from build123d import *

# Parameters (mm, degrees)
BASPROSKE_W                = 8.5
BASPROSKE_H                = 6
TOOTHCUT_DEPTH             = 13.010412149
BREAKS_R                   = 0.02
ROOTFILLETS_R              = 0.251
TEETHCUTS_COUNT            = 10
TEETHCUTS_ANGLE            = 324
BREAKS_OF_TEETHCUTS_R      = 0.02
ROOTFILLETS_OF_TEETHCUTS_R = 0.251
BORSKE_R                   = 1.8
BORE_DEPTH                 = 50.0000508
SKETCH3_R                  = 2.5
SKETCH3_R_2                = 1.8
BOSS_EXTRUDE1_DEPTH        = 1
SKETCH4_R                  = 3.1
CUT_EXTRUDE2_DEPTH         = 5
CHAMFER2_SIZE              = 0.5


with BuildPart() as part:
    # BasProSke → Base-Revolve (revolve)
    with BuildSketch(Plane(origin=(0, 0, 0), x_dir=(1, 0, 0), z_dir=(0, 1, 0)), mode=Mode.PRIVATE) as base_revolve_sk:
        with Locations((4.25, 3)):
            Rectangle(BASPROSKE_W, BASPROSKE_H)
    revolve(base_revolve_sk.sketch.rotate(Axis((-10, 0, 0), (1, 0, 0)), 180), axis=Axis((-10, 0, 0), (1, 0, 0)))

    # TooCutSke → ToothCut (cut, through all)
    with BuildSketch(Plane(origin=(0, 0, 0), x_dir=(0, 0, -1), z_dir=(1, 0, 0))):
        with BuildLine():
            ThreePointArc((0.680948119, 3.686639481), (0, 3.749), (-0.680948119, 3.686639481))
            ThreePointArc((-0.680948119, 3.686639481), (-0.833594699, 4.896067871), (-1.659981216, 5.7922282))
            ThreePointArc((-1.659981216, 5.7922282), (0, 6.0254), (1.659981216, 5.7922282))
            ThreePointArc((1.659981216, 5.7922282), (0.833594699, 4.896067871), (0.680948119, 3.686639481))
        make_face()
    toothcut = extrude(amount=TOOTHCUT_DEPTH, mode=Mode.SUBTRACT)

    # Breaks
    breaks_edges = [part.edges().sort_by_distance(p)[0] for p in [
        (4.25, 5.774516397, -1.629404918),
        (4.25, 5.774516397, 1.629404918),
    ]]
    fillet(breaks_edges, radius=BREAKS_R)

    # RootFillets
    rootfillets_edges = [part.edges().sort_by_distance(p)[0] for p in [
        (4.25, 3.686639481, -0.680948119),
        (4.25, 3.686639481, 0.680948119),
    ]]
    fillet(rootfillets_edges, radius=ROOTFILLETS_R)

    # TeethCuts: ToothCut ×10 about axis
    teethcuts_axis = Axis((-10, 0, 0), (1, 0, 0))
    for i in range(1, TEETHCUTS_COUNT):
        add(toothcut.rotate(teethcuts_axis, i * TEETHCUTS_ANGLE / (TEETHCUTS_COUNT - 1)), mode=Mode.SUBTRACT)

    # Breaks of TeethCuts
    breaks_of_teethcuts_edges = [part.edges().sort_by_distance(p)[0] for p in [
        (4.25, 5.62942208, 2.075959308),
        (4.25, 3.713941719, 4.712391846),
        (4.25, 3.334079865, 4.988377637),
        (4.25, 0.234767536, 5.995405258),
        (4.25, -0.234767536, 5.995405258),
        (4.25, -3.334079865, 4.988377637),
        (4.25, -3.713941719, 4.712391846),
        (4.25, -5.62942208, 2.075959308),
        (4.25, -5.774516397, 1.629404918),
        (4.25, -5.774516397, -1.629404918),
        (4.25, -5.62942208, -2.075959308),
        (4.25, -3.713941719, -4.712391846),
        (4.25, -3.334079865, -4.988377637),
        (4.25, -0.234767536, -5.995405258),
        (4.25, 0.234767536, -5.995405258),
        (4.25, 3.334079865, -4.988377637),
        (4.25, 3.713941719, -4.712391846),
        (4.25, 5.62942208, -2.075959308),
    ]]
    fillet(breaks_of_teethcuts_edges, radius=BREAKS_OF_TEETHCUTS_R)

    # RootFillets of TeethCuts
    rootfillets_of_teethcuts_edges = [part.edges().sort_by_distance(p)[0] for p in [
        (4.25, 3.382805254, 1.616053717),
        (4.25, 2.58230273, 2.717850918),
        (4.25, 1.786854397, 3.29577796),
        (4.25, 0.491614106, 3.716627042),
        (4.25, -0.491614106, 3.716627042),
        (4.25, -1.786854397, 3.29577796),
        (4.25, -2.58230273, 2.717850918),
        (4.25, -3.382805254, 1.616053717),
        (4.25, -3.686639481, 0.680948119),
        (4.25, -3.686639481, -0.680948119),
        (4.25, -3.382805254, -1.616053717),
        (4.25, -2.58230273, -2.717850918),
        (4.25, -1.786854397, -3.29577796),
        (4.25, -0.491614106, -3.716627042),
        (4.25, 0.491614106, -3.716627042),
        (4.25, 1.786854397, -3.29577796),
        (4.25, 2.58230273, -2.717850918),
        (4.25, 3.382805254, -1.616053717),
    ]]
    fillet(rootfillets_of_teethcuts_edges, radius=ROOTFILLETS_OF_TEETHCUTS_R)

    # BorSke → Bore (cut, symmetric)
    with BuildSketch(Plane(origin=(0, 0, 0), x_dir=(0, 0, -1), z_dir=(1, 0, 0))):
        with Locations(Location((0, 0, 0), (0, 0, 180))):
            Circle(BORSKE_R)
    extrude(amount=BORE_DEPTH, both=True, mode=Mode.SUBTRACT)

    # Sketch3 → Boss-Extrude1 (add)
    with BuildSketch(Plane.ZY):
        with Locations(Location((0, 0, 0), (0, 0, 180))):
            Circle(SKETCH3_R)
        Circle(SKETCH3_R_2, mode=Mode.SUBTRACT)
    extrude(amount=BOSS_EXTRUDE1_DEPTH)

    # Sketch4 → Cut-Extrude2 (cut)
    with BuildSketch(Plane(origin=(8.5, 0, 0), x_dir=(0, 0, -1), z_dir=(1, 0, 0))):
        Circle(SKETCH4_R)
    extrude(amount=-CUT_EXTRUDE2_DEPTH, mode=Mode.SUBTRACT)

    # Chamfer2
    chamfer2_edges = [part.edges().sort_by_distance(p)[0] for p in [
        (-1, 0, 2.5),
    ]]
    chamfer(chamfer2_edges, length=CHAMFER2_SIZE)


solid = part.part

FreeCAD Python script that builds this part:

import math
import FreeCAD as App
import Part
import Sketcher

V = App.Vector


def edges_at(feature, points):
    """Names of the edges that pass closest to the given points."""
    edges = feature.Shape.Edges
    near = lambda p: min(range(len(edges)), key=lambda i: edges[i].distToShape(Part.Vertex(*p))[0])
    return sorted({f"Edge{near(p) + 1}" for p in points})

doc = App.newDocument("Part")
body = doc.addObject("PartDesign::Body", "Body")

sketch1 = body.newObject("Sketcher::SketchObject", "Sketch")
sketch1.AttachmentSupport = (doc.getObject("XZ_Plane"), [""])
sketch1.MapMode = "FlatFace"
sketch1.addGeometry([
    Part.LineSegment(V(0, -6, 0), V(0, 0, 0)),
    Part.LineSegment(V(0, 0, 0), V(8, 0, 0)),
    Part.LineSegment(V(8, 0, 0), V(8, -6, 0)),
    Part.LineSegment(V(8, -6, 0), V(0, -6, 0)),
], False)
sketch1.addConstraint([
    Sketcher.Constraint("Coincident", 0, 2, 1, 1),
    Sketcher.Constraint("Coincident", 1, 2, 2, 1),
    Sketcher.Constraint("Coincident", 2, 2, 3, 1),
    Sketcher.Constraint("Coincident", 3, 2, 0, 1),
    Sketcher.Constraint("Vertical", 0),
    Sketcher.Constraint("Horizontal", 1),
    Sketcher.Constraint("Vertical", 2),
    Sketcher.Constraint("Horizontal", 3),
    Sketcher.Constraint("Coincident", 0, 2, -1, 1),
    Sketcher.Constraint("DistanceY", 0, 1, 0, 2, 6.0),
    Sketcher.Constraint("DistanceX", 1, 1, 1, 2, 8.5),
])
revolution = body.newObject("PartDesign::Revolution", "Revolution")
revolution.Profile = sketch1
revolution.ReferenceAxis = (sketch1, ["H_Axis"])
revolution.Angle = 360

sketch2 = body.newObject("Sketcher::SketchObject", "Sketch001")
sketch2.AttachmentSupport = (doc.getObject("YZ_Plane"), [""])
sketch2.MapMode = "FlatFace"
sketch2.addGeometry([
    Part.ArcOfCircle(Part.Circle(V(0, 0, 0), V(0, 0, 1), 3.7), math.radians(-10), math.radians(10)),
    Part.ArcOfCircle(Part.Circle(V(4.1, -2.6, 0), V(0, 0, 1), 2), math.radians(30), math.radians(101)),
    Part.ArcOfCircle(Part.Circle(V(0, 0, 0), V(0, 0, 1), 6), math.radians(-16), math.radians(16)),
    Part.ArcOfCircle(Part.Circle(V(4.1, 2.6, 0), V(0, 0, 1), 2), math.radians(-101), math.radians(-30)),
], False)
sketch2.addConstraint([
    Sketcher.Constraint("Coincident", 0, 1, 1, 2),
    Sketcher.Constraint("Coincident", 1, 1, 2, 1),
    Sketcher.Constraint("Coincident", 2, 2, 3, 2),
    Sketcher.Constraint("Coincident", 3, 1, 0, 2),
    Sketcher.Constraint("Coincident", 0, 3, -1, 1),
    Sketcher.Constraint("Coincident", 2, 3, -1, 1),
    Sketcher.Constraint("Equal", 1, 3),
    Sketcher.Constraint("Symmetric", 1, 3, 3, 3, -1),
    Sketcher.Constraint("Radius", 1, 2.0),
    Sketcher.Constraint("Radius", 0, 3.749),
    Sketcher.Constraint("Radius", 2, 6.0254),
    Sketcher.Constraint("DistanceX", 1, 3, 1, 1, 1.739402),
    Sketcher.Constraint("DistanceY", 1, 3, -1, 1, 2.647139),
])
pocket1 = body.newObject("PartDesign::Pocket", "Pocket")
pocket1.Profile = sketch2
pocket1.Type = "ThroughAll"
pocket1.Reversed = True
doc.recompute()

fillet = body.newObject("PartDesign::Fillet", "Fillet")
fillet.Base = (pocket1, edges_at(pocket1, [(4.25, 5.775, -1.629), (4.25, 5.775, 1.629)]))
fillet.Radius = 0.02
doc.recompute()

fillet2 = body.newObject("PartDesign::Fillet", "Fillet001")
fillet2.Base = (fillet, edges_at(fillet, [(4.25, 3.687, -0.681), (4.25, 3.687, 0.681)]))
fillet2.Radius = 0.251
doc.recompute()

polarpattern = body.newObject("PartDesign::PolarPattern", "PolarPattern")
polarpattern.Originals = [pocket1]
polarpattern.Axis = (doc.getObject("X_Axis"), [""])
polarpattern.Angle = 360
polarpattern.Occurrences = 10
body.Tip = polarpattern
doc.recompute()

fillet3 = body.newObject("PartDesign::Fillet", "Fillet002")
fillet3.Base = (polarpattern, edges_at(polarpattern, [
    (4.25, 5.629, 2.076),
    (4.25, 3.714, 4.712),
    (4.25, 3.334, 4.988),
    (4.25, 0.235, 5.995),
    (4.25, -0.235, 5.995),
    (4.25, -3.334, 4.988),
    (4.25, -3.714, 4.712),
    (4.25, -5.629, 2.076),
    (4.25, -5.775, 1.629),
    (4.25, -5.775, -1.629),
    (4.25, -5.629, -2.076),
    (4.25, -3.714, -4.712),
    (4.25, -3.334, -4.988),
    (4.25, -0.235, -5.995),
    (4.25, 0.235, -5.995),
    (4.25, 3.334, -4.988),
    (4.25, 3.714, -4.712),
    (4.25, 5.629, -2.076),
]))
fillet3.Radius = 0.02
doc.recompute()

fillet4 = body.newObject("PartDesign::Fillet", "Fillet003")
fillet4.Base = (fillet3, edges_at(fillet3, [
    (4.25, 3.383, 1.616),
    (4.25, 2.582, 2.718),
    (4.25, 1.787, 3.296),
    (4.25, 0.492, 3.717),
    (4.25, -0.492, 3.717),
    (4.25, -1.787, 3.296),
    (4.25, -2.582, 2.718),
    (4.25, -3.383, 1.616),
    (4.25, -3.687, 0.681),
    (4.25, -3.687, -0.681),
    (4.25, -3.383, -1.616),
    (4.25, -2.582, -2.718),
    (4.25, -1.787, -3.296),
    (4.25, -0.492, -3.717),
    (4.25, 0.492, -3.717),
    (4.25, 1.787, -3.296),
    (4.25, 2.582, -2.718),
    (4.25, 3.383, -1.616),
]))
fillet4.Radius = 0.251

sketch3 = body.newObject("Sketcher::SketchObject", "Sketch002")
sketch3.AttachmentSupport = (doc.getObject("YZ_Plane"), [""])
sketch3.MapMode = "FlatFace"
sketch3.addGeometry(Part.Circle(V(0, 0, 0), V(0, 0, 1), 1.8), False)
sketch3.addConstraint([
    Sketcher.Constraint("Coincident", 0, 3, -1, 1),
    Sketcher.Constraint("Diameter", 0, 3.6),
])
pocket2 = body.newObject("PartDesign::Pocket", "Pocket001")
pocket2.Profile = sketch3
pocket2.Length = 100.000102
pocket2.Midplane = True

sketch4 = body.newObject("Sketcher::SketchObject", "Sketch003")
sketch4.AttachmentSupport = (doc.getObject("YZ_Plane"), [""])
sketch4.MapMode = "FlatFace"
sketch4.addGeometry([
    Part.Circle(V(0, 0, 0), V(0, 0, 1), 2.5),
    Part.Circle(V(0, 0, 0), V(0, 0, 1), 1.8),
], False)
sketch4.addConstraint([
    Sketcher.Constraint("Coincident", 0, 3, -1, 1),
    Sketcher.Constraint("Coincident", 1, 3, -1, 1),
    Sketcher.Constraint("Diameter", 0, 5.0),
    Sketcher.Constraint("Diameter", 1, 3.6),
])
pad1 = body.newObject("PartDesign::Pad", "Pad")
pad1.Profile = sketch4
pad1.Length = 1
pad1.Reversed = True

sketch5 = body.newObject("Sketcher::SketchObject", "Sketch004")
sketch5.AttachmentSupport = (doc.getObject("YZ_Plane"), [""])
sketch5.MapMode = "FlatFace"
sketch5.AttachmentOffset = App.Placement(V(0, 0, 8.5), App.Rotation())
sketch5.addGeometry(Part.Circle(V(0, 0, 0), V(0, 0, 1), 3.1), False)
sketch5.addConstraint([
    Sketcher.Constraint("Coincident", 0, 3, -1, 1),
    Sketcher.Constraint("Diameter", 0, 6.2),
])
pocket3 = body.newObject("PartDesign::Pocket", "Pocket002")
pocket3.Profile = sketch5
pocket3.Length = 5
doc.recompute()

chamfer = body.newObject("PartDesign::Chamfer", "Chamfer")
chamfer.Base = (pocket3, edges_at(pocket3, [(-1, 0, 2.5)]))
chamfer.Size = 0.5

doc.recompute()
